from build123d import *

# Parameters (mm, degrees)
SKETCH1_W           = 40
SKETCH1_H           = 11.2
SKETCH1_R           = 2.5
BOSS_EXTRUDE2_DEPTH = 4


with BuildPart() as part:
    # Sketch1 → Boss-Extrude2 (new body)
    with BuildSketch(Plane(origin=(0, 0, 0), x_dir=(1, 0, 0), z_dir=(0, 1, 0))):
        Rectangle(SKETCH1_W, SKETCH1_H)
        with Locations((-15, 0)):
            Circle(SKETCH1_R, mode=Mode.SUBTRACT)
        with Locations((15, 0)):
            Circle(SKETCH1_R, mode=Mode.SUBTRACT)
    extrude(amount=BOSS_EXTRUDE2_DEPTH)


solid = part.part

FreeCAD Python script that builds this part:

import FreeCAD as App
import Part
import Sketcher
from FreeCAD import Vector
Q = App.Units.Quantity


def add_polygon(sketch, points):
    """Adds a closed chain of lines whose ends are joined by coincident constraints."""
    first, n = sketch.GeometryCount, len(points)
    for a, b in zip(points, points[1:] + points[:1]):
        sketch.addGeometry(Part.LineSegment(App.Vector(*a, 0), App.Vector(*b, 0)), False)
    for i in range(n):
        sketch.addConstraint(Sketcher.Constraint("Coincident", first + i, 2, first + (i + 1) % n, 1))

doc = App.newDocument("Part")
body = doc.addObject("PartDesign::Body", "Body")

# Sketch on XZ plane
sketch1 = doc.addObject("Sketcher::SketchObject", "Sketch")
body.addObject(sketch1)
sketch1.AttachmentSupport = (doc.XZ_Plane, [""])
sketch1.MapMode = "FlatFace"
add_polygon(sketch1, [(-20, -5.6), (-20, 5.6), (20, 5.6), (20, -5.6)])  # lines 0-3
sketch1.addGeometry(Part.Circle(Vector(-15, 0, 0), Vector(0, 0, 1), 2.5), False)  # 4
sketch1.addGeometry(Part.Circle(Vector(15, 0, 0), Vector(0, 0, 1), 2.5), False)  # 5
sketch1.addConstraint([
    Sketcher.Constraint("Vertical", 0),
    Sketcher.Constraint("Horizontal", 1),
    Sketcher.Constraint("Vertical", 2),
    Sketcher.Constraint("Horizontal", 3),
    Sketcher.Constraint("Equal", 4, 5),
    Sketcher.Constraint("Symmetric", 4, 3, 5, 3, -1, 1),
    Sketcher.Constraint("Symmetric", 0, 2, 2, 2, -1, 1),
    Sketcher.Constraint("PointOnObject", 4, 3, -1),
    Sketcher.Constraint("Diameter", 4, Q("5 mm")),
    Sketcher.Constraint("DistanceX", 1, 1, 1, 2, Q("40 mm")),
    Sketcher.Constraint("DistanceY", 0, 1, 0, 2, Q("11.2 mm")),
    Sketcher.Constraint("DistanceX", 4, 3, -1, 1, Q("15 mm")),
])
pad1 = doc.addObject("PartDesign::Pad", "Pad")
body.addObject(pad1)
pad1.Profile = sketch1
pad1.Length = 4
pad1.Reversed = True

doc.recompute()
